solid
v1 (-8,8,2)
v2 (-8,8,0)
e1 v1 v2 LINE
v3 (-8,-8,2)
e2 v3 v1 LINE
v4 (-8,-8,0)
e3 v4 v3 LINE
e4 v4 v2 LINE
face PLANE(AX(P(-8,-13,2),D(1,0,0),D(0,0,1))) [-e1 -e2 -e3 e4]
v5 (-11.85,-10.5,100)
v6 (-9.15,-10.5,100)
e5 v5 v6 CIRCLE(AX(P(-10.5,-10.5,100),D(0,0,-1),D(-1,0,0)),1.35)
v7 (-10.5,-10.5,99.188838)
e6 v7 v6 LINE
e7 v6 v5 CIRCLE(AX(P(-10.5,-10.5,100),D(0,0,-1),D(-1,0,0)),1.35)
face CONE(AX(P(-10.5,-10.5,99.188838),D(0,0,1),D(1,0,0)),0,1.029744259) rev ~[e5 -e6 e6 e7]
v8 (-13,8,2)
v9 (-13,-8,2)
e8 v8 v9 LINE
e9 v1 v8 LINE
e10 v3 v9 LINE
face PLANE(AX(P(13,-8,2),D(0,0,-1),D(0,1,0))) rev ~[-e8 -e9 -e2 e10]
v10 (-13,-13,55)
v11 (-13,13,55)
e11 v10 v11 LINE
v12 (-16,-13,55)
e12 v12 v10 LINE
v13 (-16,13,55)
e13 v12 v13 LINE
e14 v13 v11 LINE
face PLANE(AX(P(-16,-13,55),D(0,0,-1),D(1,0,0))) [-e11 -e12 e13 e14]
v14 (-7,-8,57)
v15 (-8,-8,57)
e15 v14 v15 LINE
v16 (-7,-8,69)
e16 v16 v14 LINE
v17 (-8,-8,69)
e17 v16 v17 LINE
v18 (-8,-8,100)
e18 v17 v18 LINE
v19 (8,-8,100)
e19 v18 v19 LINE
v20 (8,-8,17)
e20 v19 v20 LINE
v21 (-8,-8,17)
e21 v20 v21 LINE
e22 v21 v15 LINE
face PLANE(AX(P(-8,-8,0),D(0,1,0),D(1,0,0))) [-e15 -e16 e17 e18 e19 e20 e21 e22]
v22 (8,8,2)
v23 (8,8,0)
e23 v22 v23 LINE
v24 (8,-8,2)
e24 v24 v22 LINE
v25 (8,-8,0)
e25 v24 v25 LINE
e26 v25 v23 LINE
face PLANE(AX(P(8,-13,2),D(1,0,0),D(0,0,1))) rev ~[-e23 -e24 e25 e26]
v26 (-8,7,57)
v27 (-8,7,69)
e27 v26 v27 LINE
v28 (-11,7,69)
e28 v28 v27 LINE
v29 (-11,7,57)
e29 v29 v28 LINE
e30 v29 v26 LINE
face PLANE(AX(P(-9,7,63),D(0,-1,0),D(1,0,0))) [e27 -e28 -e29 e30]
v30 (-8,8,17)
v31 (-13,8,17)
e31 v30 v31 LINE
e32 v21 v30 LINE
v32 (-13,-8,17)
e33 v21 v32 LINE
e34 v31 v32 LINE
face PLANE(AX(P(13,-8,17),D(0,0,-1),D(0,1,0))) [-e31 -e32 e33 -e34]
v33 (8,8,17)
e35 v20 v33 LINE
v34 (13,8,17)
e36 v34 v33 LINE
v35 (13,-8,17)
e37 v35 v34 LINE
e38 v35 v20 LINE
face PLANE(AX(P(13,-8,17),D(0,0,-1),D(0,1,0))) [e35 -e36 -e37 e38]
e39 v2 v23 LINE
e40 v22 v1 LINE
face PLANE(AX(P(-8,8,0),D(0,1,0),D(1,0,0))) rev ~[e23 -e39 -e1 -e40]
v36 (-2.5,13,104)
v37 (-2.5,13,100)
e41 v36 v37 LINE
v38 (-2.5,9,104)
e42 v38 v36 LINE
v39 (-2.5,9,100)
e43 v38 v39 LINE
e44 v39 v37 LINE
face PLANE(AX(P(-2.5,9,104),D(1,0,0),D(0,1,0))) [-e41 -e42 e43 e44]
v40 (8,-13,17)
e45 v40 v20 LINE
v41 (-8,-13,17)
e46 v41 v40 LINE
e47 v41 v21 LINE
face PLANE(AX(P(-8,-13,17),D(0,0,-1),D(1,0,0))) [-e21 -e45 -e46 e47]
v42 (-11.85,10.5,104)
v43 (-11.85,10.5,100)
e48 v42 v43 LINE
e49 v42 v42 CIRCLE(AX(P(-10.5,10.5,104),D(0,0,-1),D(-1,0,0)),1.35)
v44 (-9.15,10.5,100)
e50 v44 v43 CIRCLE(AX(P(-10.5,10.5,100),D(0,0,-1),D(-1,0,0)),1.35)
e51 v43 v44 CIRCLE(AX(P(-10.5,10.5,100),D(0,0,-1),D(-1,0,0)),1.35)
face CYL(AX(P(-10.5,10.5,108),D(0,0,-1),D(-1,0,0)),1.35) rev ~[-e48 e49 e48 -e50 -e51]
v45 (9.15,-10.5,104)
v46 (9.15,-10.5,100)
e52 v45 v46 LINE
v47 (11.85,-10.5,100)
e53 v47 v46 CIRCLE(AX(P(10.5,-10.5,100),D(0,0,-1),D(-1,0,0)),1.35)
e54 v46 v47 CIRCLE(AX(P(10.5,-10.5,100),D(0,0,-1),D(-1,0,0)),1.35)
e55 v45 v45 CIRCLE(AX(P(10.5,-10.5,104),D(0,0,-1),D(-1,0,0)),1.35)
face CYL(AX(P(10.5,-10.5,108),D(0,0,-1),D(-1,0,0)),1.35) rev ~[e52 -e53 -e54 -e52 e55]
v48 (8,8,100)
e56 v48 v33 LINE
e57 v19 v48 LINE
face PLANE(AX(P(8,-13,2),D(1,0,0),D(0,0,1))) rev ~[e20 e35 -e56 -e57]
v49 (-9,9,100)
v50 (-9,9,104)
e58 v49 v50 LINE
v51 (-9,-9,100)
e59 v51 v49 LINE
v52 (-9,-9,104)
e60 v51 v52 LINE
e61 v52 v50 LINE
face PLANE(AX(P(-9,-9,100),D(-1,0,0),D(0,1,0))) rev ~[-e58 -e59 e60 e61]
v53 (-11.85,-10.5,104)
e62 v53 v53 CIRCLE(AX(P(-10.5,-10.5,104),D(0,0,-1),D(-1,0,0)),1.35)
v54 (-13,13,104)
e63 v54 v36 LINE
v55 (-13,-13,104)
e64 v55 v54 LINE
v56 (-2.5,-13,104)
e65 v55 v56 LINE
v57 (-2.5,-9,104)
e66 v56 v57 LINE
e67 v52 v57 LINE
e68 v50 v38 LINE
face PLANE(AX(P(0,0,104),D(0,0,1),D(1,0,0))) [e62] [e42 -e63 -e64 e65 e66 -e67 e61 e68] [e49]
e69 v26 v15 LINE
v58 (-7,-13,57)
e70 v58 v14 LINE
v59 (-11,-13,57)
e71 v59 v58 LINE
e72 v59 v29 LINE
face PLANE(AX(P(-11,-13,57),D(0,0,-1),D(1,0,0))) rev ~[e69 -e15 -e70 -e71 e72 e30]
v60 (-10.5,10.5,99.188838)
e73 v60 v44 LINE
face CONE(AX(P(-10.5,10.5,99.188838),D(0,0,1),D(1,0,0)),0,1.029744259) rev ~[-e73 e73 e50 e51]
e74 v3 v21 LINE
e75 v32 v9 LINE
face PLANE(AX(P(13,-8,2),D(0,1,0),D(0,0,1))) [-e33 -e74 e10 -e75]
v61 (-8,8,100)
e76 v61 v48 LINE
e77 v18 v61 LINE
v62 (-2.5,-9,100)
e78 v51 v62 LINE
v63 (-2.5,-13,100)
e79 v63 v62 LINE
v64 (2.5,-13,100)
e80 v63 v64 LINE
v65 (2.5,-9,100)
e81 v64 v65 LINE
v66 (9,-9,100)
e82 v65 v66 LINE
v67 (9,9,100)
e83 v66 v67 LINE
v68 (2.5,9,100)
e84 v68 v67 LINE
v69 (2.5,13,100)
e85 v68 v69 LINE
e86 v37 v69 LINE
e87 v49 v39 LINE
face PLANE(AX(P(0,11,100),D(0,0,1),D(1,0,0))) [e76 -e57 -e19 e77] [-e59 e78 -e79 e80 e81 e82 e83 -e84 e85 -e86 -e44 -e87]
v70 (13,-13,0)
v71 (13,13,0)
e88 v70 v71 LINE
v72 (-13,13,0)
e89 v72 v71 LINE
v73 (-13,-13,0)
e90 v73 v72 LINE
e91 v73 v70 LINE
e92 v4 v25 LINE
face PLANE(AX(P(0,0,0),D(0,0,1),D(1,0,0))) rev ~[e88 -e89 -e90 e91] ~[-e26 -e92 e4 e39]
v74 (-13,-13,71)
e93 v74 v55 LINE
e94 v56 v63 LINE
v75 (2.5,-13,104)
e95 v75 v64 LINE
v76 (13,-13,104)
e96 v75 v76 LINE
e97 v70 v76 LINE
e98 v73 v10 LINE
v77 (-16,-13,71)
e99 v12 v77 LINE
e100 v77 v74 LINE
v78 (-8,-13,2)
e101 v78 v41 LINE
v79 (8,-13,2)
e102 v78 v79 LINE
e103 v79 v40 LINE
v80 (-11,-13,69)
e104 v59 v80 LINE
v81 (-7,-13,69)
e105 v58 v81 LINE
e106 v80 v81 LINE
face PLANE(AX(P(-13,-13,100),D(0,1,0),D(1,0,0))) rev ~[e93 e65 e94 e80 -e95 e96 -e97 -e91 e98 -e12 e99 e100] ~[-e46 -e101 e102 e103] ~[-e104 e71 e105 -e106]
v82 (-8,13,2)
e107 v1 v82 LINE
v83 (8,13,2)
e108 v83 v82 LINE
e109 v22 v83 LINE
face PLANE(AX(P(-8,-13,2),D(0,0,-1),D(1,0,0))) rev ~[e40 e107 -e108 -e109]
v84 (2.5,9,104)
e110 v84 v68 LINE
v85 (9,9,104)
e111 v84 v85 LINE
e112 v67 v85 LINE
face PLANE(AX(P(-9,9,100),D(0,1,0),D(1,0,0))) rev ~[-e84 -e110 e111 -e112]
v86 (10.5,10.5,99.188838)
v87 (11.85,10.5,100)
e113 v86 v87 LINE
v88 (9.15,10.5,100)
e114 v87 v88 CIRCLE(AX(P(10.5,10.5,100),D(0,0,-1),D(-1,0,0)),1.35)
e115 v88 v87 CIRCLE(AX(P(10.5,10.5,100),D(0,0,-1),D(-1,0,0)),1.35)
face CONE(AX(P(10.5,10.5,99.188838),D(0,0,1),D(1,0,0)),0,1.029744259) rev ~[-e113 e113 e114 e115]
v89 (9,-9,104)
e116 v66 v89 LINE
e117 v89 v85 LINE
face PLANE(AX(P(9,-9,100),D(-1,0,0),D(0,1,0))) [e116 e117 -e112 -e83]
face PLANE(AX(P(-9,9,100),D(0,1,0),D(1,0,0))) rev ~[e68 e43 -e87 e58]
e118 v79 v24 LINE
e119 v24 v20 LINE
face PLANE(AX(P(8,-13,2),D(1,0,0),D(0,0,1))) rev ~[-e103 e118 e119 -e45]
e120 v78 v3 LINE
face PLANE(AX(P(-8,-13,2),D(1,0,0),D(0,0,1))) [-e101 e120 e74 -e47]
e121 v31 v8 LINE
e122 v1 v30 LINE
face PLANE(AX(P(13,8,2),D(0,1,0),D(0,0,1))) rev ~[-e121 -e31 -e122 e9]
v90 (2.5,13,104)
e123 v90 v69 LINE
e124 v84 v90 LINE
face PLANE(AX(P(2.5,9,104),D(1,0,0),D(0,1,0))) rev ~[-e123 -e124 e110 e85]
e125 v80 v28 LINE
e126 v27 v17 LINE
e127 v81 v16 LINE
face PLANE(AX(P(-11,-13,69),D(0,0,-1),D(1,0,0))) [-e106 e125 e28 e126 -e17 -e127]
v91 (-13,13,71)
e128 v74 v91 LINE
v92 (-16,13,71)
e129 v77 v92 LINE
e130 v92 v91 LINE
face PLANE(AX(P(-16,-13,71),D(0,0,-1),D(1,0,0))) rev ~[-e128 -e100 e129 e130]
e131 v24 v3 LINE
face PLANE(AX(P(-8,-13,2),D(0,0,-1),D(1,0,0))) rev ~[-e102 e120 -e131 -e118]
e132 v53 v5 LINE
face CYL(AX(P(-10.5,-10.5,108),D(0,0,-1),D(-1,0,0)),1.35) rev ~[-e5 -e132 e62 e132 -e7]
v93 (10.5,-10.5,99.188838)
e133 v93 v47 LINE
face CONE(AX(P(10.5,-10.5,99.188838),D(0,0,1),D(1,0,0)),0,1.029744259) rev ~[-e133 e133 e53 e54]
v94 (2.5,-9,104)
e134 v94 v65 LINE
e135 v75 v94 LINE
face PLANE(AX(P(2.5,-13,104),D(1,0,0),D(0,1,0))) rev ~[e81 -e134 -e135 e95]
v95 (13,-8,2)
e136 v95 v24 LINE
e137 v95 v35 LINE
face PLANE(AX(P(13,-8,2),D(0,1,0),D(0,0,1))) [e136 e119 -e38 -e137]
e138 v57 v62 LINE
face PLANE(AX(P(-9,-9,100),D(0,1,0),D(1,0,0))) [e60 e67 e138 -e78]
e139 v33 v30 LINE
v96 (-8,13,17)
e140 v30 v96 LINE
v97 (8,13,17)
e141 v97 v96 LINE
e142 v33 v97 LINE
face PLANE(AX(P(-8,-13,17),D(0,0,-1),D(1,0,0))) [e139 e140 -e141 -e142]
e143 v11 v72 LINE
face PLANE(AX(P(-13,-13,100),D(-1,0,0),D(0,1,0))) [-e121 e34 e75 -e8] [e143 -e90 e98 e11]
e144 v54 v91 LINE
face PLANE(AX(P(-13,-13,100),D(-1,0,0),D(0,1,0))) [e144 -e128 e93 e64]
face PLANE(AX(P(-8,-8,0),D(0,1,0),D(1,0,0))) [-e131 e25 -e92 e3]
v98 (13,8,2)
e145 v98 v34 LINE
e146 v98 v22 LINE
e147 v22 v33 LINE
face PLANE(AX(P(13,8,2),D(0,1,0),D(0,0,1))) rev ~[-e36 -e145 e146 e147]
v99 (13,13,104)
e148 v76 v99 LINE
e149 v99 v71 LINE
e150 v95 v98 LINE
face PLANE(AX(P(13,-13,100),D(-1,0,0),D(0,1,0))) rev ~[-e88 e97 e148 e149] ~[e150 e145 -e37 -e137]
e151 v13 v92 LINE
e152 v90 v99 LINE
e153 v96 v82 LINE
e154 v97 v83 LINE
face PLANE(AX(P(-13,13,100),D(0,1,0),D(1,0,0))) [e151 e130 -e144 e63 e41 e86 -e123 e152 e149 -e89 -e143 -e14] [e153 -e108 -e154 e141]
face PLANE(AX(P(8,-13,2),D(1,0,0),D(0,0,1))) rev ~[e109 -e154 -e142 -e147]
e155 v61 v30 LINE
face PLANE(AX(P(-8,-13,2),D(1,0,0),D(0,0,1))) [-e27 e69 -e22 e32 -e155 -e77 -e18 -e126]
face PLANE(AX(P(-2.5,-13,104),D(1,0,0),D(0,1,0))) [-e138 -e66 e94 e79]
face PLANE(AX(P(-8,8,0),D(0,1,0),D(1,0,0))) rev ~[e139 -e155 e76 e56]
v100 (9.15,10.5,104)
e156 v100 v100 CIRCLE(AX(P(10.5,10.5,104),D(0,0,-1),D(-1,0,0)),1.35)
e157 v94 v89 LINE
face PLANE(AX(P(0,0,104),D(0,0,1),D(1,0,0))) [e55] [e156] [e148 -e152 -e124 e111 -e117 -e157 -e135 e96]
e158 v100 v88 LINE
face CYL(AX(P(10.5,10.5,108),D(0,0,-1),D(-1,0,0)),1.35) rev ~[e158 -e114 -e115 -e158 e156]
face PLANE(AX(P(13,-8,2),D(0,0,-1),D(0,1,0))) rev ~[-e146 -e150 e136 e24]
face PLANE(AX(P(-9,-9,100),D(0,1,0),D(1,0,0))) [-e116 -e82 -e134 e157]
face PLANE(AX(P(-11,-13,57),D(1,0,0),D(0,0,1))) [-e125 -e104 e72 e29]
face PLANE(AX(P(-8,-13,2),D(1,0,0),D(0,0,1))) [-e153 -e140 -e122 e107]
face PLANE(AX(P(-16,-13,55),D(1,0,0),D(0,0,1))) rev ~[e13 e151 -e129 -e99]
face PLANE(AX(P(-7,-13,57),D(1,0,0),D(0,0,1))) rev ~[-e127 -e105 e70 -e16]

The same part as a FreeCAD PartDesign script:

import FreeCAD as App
import Part
import Sketcher
from FreeCAD import Vector
Q = App.Units.Quantity


def add_polygon(sketch, points):
    """Adds a closed chain of lines whose ends are joined by coincident constraints."""
    first, n = sketch.GeometryCount, len(points)
    for a, b in zip(points, points[1:] + points[:1]):
        sketch.addGeometry(Part.LineSegment(App.Vector(*a, 0), App.Vector(*b, 0)), False)
    for i in range(n):
        sketch.addConstraint(Sketcher.Constraint("Coincident", first + i, 2, first + (i + 1) % n, 1))

doc = App.newDocument("Part")
body = doc.addObject("PartDesign::Body", "Body")

# Sketch on XY plane
sketch1 = body.newObject("Sketcher::SketchObject", "Sketch")
sketch1.AttachmentSupport = (doc.getObject("XY_Plane"), [""])
sketch1.MapMode = "FlatFace"
add_polygon(sketch1, [(-13, 13), (-13, -13), (13, -13), (13, 13)])  # lines 0-3
sketch1.addConstraint([
    Sketcher.Constraint("Vertical", 0),
    Sketcher.Constraint("Horizontal", 1),
    Sketcher.Constraint("Vertical", 2),
    Sketcher.Constraint("Horizontal", 3),
    Sketcher.Constraint("Symmetric", 0, 2, 2, 2, -1, 1),
    Sketcher.Constraint("Equal", 3, 0),
    Sketcher.Constraint("DistanceX", 1, 1, 1, 2, Q("26 mm")),
])
pad1 = body.newObject("PartDesign::Pad", "Pad")
pad1.Profile = sketch1
pad1.Length = 2

# Sketch on XY plane
sketch2 = body.newObject("Sketcher::SketchObject", "Sketch001")
sketch2.AttachmentSupport = (doc.getObject("XY_Plane"), [""])
sketch2.MapMode = "FlatFace"
add_polygon(sketch2, [(-13, 13), (-13, -13), (13, -13), (13, 13)])  # lines 0-3
add_polygon(sketch2, [(8, -8), (-8, -8), (-8, 8), (8, 8)])  # lines 4-7
sketch2.addConstraint([
    Sketcher.Constraint("Vertical", 0),
    Sketcher.Constraint("Horizontal", 1),
    Sketcher.Constraint("Vertical", 2),
    Sketcher.Constraint("Horizontal", 3),
    Sketcher.Constraint("Horizontal", 4),
    Sketcher.Constraint("Vertical", 5),
    Sketcher.Constraint("Horizontal", 6),
    Sketcher.Constraint("Vertical", 7),
    Sketcher.Constraint("Symmetric", 0, 2, 2, 2, -1, 1),
    Sketcher.Constraint("Symmetric", 4, 2, 6, 2, -1, 1),
    Sketcher.Constraint("Equal", 3, 0),
    Sketcher.Constraint("Equal", 6, 5),
    Sketcher.Constraint("DistanceX", 1, 1, 1, 2, Q("26 mm")),
    Sketcher.Constraint("DistanceX", 4, 2, 4, 1, Q("16 mm")),
])
pad2 = body.newObject("PartDesign::Pad", "Pad001")
pad2.Profile = sketch2
pad2.Length = 100

# Sketch on XY plane
sketch3 = body.newObject("Sketcher::SketchObject", "Sketch002")
sketch3.AttachmentSupport = (doc.getObject("XY_Plane"), [""])
sketch3.MapMode = "FlatFace"
sketch3.AttachmentOffset = App.Placement(Vector(0, 0, 100), App.Rotation())
add_polygon(sketch3, [(-13, 13), (-13, -13), (13, -13), (13, 13)])  # lines 0-3
add_polygon(sketch3, [(9, -9), (-9, -9), (-9, 9), (9, 9)])  # lines 4-7
sketch3.addConstraint([
    Sketcher.Constraint("Vertical", 0),
    Sketcher.Constraint("Horizontal", 1),
    Sketcher.Constraint("Vertical", 2),
    Sketcher.Constraint("Horizontal", 3),
    Sketcher.Constraint("Horizontal", 4),
    Sketcher.Constraint("Vertical", 5),
    Sketcher.Constraint("Horizontal", 6),
    Sketcher.Constraint("Vertical", 7),
    Sketcher.Constraint("Symmetric", 0, 2, 2, 2, -1, 1),
    Sketcher.Constraint("Symmetric", 4, 2, 6, 2, -1, 1),
    Sketcher.Constraint("Equal", 3, 0),
    Sketcher.Constraint("Equal", 6, 5),
    Sketcher.Constraint("DistanceX", 1, 1, 1, 2, Q("26 mm")),
    Sketcher.Constraint("DistanceX", 4, 2, 4, 1, Q("18 mm")),
])
pad3 = body.newObject("PartDesign::Pad", "Pad002")
pad3.Profile = sketch3
pad3.Length = 4

# Sketch on XY plane
sketch4 = body.newObject("Sketcher::SketchObject", "Sketch003")
sketch4.AttachmentSupport = (doc.getObject("XY_Plane"), [""])
sketch4.MapMode = "FlatFace"
sketch4.AttachmentOffset = App.Placement(Vector(0, 0, 104), App.Rotation())
add_polygon(sketch4, [(-2.5, -9), (-2.5, -13), (2.5, -13), (2.5, -9)])  # lines 0-3
add_polygon(sketch4, [(-2.5, 13), (-2.5, 9), (2.5, 9), (2.5, 13)])  # lines 4-7
sketch4.addConstraint([
    Sketcher.Constraint("Vertical", 0),
    Sketcher.Constraint("Horizontal", 1),
    Sketcher.Constraint("Vertical", 2),
    Sketcher.Constraint("Horizontal", 3),
    Sketcher.Constraint("Vertical", 4),
    Sketcher.Constraint("Horizontal", 5),
    Sketcher.Constraint("Vertical", 6),
    Sketcher.Constraint("Horizontal", 7),
    Sketcher.Constraint("Symmetric", 2, 2, 4, 2, -1, 1),
    Sketcher.Constraint("Symmetric", 0, 2, 6, 2, -1, 1),
    Sketcher.Constraint("Vertical", 3, 2, 4, 2),
    Sketcher.Constraint("DistanceX", 1, 1, 1, 2, Q("5 mm")),
    Sketcher.Constraint("DistanceY", 0, 2, 0, 1, Q("4 mm")),
    Sketcher.Constraint("DistanceY", 0, 2, -1, 1, Q("13 mm")),
])
pocket1 = body.newObject("PartDesign::Pocket", "Pocket")
pocket1.Profile = sketch4
pocket1.Length = 4

# Sketch on XY plane
sketch5 = body.newObject("Sketcher::SketchObject", "Sketch004")
sketch5.AttachmentSupport = (doc.getObject("XY_Plane"), [""])
sketch5.MapMode = "FlatFace"
sketch5.AttachmentOffset = App.Placement(Vector(0, 0, 104), App.Rotation())
sketch5.addGeometry([
    Part.Circle(Vector(-10.5, 10.5, 0), Vector(0, 0, 1), 1.4),
    Part.Circle(Vector(10.5, 10.5, 0), Vector(0, 0, 1), 1.4),
    Part.Circle(Vector(-10.5, -10.5, 0), Vector(0, 0, 1), 1.4),
    Part.Circle(Vector(10.5, -10.5, 0), Vector(0, 0, 1), 1.4),
], False)
sketch5.addConstraint([
    Sketcher.Constraint("Equal", 0, 1),
    Sketcher.Constraint("Equal", 1, 2),
    Sketcher.Constraint("Equal", 2, 3),
    Sketcher.Constraint("Symmetric", 1, 3, 2, 3, -1, 1),
    Sketcher.Constraint("Symmetric", 0, 3, 3, 3, -1, 1),
    Sketcher.Constraint("Symmetric", 0, 3, 1, 3, -2),
    Sketcher.Constraint("Diameter", 0, Q("2.7 mm")),
    Sketcher.Constraint("DistanceX", 0, 3, 1, 3, Q("21 mm")),
    Sketcher.Constraint("DistanceY", 2, 3, 0, 3, Q("21 mm")),
])
doc.recompute()
hole = body.newObject("PartDesign::Hole", "Hole")
hole.Profile = sketch5
hole.ThreadType = "None"
hole.Diameter = 2.7
hole.DepthType = "Dimension"
hole.Depth = 4
hole.DrillPoint = "Angled"
hole.DrillPointAngle = 118

# Sketch on XY plane
sketch6 = body.newObject("Sketcher::SketchObject", "Sketch005")
sketch6.AttachmentSupport = (doc.getObject("XY_Plane"), [""])
sketch6.MapMode = "FlatFace"
add_polygon(sketch6, [(-8, 8), (-8, -8), (8, -8), (8, 8)])  # lines 0-3
sketch6.addConstraint([
    Sketcher.Constraint("Vertical", 0),
    Sketcher.Constraint("Horizontal", 1),
    Sketcher.Constraint("Vertical", 2),
    Sketcher.Constraint("Horizontal", 3),
    Sketcher.Constraint("Symmetric", 0, 2, 2, 2, -1, 1),
    Sketcher.Constraint("Equal", 3, 0),
    Sketcher.Constraint("DistanceX", 1, 1, 1, 2, Q("16 mm")),
])
pocket2 = body.newObject("PartDesign::Pocket", "Pocket001")
pocket2.Profile = sketch6
pocket2.Length = 25
pocket2.Reversed = True

# Sketch on XZ plane
sketch7 = body.newObject("Sketcher::SketchObject", "Sketch006")
sketch7.AttachmentSupport = (doc.getObject("XZ_Plane"), [""])
sketch7.MapMode = "FlatFace"
sketch7.AttachmentOffset = App.Placement(Vector(0, 0, 13), App.Rotation())
add_polygon(sketch7, [(-16, 71), (-16, 55), (-13, 55), (-13, 71)])  # lines 0-3
sketch7.addConstraint([
    Sketcher.Constraint("Vertical", 0),
    Sketcher.Constraint("Horizontal", 1),
    Sketcher.Constraint("Vertical", 2),
    Sketcher.Constraint("Horizontal", 3),
    Sketcher.Constraint("DistanceX", 1, 1, 1, 2, Q("3 mm")),
    Sketcher.Constraint("DistanceY", 0, 2, 0, 1, Q("16 mm")),
    Sketcher.Constraint("DistanceX", 0, 2, -1, 1, Q("16 mm")),
    Sketcher.Constraint("DistanceY", -1, 1, 0, 2, Q("55 mm")),
])
pad4 = body.newObject("PartDesign::Pad", "Pad003")
pad4.Profile = sketch7
pad4.Length = 26
pad4.Reversed = True

# Sketch on XZ plane
sketch8 = body.newObject("Sketcher::SketchObject", "Sketch007")
sketch8.AttachmentSupport = (doc.getObject("XZ_Plane"), [""])
sketch8.MapMode = "FlatFace"
sketch8.AttachmentOffset = App.Placement(Vector(0, 0, 13), App.Rotation())
add_polygon(sketch8, [(-11, 69), (-11, 57), (-7, 57), (-7, 69)])  # lines 0-3
sketch8.addConstraint([
    Sketcher.Constraint("Vertical", 0),
    Sketcher.Constraint("Horizontal", 1),
    Sketcher.Constraint("Vertical", 2),
    Sketcher.Constraint("Horizontal", 3),
    Sketcher.Constraint("DistanceX", 1, 1, 1, 2, Q("4 mm")),
    Sketcher.Constraint("DistanceY", 0, 2, 0, 1, Q("12 mm")),
    Sketcher.Constraint("DistanceX", 0, 2, -1, 1, Q("11 mm")),
    Sketcher.Constraint("DistanceY", -1, 1, 0, 2, Q("57 mm")),
])
pocket3 = body.newObject("PartDesign::Pocket", "Pocket002")
pocket3.Profile = sketch8
pocket3.Length = 20

# Sketch on XZ plane
sketch9 = body.newObject("Sketcher::SketchObject", "Sketch008")
sketch9.AttachmentSupport = (doc.getObject("XZ_Plane"), [""])
sketch9.MapMode = "FlatFace"
sketch9.AttachmentOffset = App.Placement(Vector(0, 0, 13), App.Rotation())
add_polygon(sketch9, [(-8, 17), (-8, 2), (8, 2), (8, 17)])  # lines 0-3
sketch9.addConstraint([
    Sketcher.Constraint("Vertical", 0),
    Sketcher.Constraint("Horizontal", 1),
    Sketcher.Constraint("Vertical", 2),
    Sketcher.Constraint("Horizontal", 3),
    Sketcher.Constraint("DistanceX", 1, 1, 1, 2, Q("16 mm")),
    Sketcher.Constraint("DistanceY", 0, 2, 0, 1, Q("15 mm")),
    Sketcher.Constraint("DistanceX", 0, 2, -1, 1, Q("8 mm")),
    Sketcher.Constraint("DistanceY", -1, 1, 0, 2, Q("2 mm")),
])
pocket4 = body.newObject("PartDesign::Pocket", "Pocket003")
pocket4.Profile = sketch9
pocket4.Length = 40

# Sketch on YZ plane
sketch10 = body.newObject("Sketcher::SketchObject", "Sketch009")
sketch10.AttachmentSupport = (doc.getObject("YZ_Plane"), [""])
sketch10.MapMode = "FlatFace"
sketch10.AttachmentOffset = App.Placement(Vector(0, 0, 13), App.Rotation())
add_polygon(sketch10, [(-8, 17), (-8, 2), (8, 2), (8, 17)])  # lines 0-3
sketch10.addConstraint([
    Sketcher.Constraint("Vertical", 0),
    Sketcher.Constraint("Horizontal", 1),
    Sketcher.Constraint("Vertical", 2),
    Sketcher.Constraint("Horizontal", 3),
    Sketcher.Constraint("DistanceX", 1, 1, 1, 2, Q("16 mm")),
    Sketcher.Constraint("DistanceY", 0, 2, 0, 1, Q("15 mm")),
    Sketcher.Constraint("DistanceX", 0, 2, -1, 1, Q("8 mm")),
    Sketcher.Constraint("DistanceY", -1, 1, 0, 2, Q("2 mm")),
])
pocket5 = body.newObject("PartDesign::Pocket", "Pocket004")
pocket5.Profile = sketch10
pocket5.Length = 40

doc.recompute()
